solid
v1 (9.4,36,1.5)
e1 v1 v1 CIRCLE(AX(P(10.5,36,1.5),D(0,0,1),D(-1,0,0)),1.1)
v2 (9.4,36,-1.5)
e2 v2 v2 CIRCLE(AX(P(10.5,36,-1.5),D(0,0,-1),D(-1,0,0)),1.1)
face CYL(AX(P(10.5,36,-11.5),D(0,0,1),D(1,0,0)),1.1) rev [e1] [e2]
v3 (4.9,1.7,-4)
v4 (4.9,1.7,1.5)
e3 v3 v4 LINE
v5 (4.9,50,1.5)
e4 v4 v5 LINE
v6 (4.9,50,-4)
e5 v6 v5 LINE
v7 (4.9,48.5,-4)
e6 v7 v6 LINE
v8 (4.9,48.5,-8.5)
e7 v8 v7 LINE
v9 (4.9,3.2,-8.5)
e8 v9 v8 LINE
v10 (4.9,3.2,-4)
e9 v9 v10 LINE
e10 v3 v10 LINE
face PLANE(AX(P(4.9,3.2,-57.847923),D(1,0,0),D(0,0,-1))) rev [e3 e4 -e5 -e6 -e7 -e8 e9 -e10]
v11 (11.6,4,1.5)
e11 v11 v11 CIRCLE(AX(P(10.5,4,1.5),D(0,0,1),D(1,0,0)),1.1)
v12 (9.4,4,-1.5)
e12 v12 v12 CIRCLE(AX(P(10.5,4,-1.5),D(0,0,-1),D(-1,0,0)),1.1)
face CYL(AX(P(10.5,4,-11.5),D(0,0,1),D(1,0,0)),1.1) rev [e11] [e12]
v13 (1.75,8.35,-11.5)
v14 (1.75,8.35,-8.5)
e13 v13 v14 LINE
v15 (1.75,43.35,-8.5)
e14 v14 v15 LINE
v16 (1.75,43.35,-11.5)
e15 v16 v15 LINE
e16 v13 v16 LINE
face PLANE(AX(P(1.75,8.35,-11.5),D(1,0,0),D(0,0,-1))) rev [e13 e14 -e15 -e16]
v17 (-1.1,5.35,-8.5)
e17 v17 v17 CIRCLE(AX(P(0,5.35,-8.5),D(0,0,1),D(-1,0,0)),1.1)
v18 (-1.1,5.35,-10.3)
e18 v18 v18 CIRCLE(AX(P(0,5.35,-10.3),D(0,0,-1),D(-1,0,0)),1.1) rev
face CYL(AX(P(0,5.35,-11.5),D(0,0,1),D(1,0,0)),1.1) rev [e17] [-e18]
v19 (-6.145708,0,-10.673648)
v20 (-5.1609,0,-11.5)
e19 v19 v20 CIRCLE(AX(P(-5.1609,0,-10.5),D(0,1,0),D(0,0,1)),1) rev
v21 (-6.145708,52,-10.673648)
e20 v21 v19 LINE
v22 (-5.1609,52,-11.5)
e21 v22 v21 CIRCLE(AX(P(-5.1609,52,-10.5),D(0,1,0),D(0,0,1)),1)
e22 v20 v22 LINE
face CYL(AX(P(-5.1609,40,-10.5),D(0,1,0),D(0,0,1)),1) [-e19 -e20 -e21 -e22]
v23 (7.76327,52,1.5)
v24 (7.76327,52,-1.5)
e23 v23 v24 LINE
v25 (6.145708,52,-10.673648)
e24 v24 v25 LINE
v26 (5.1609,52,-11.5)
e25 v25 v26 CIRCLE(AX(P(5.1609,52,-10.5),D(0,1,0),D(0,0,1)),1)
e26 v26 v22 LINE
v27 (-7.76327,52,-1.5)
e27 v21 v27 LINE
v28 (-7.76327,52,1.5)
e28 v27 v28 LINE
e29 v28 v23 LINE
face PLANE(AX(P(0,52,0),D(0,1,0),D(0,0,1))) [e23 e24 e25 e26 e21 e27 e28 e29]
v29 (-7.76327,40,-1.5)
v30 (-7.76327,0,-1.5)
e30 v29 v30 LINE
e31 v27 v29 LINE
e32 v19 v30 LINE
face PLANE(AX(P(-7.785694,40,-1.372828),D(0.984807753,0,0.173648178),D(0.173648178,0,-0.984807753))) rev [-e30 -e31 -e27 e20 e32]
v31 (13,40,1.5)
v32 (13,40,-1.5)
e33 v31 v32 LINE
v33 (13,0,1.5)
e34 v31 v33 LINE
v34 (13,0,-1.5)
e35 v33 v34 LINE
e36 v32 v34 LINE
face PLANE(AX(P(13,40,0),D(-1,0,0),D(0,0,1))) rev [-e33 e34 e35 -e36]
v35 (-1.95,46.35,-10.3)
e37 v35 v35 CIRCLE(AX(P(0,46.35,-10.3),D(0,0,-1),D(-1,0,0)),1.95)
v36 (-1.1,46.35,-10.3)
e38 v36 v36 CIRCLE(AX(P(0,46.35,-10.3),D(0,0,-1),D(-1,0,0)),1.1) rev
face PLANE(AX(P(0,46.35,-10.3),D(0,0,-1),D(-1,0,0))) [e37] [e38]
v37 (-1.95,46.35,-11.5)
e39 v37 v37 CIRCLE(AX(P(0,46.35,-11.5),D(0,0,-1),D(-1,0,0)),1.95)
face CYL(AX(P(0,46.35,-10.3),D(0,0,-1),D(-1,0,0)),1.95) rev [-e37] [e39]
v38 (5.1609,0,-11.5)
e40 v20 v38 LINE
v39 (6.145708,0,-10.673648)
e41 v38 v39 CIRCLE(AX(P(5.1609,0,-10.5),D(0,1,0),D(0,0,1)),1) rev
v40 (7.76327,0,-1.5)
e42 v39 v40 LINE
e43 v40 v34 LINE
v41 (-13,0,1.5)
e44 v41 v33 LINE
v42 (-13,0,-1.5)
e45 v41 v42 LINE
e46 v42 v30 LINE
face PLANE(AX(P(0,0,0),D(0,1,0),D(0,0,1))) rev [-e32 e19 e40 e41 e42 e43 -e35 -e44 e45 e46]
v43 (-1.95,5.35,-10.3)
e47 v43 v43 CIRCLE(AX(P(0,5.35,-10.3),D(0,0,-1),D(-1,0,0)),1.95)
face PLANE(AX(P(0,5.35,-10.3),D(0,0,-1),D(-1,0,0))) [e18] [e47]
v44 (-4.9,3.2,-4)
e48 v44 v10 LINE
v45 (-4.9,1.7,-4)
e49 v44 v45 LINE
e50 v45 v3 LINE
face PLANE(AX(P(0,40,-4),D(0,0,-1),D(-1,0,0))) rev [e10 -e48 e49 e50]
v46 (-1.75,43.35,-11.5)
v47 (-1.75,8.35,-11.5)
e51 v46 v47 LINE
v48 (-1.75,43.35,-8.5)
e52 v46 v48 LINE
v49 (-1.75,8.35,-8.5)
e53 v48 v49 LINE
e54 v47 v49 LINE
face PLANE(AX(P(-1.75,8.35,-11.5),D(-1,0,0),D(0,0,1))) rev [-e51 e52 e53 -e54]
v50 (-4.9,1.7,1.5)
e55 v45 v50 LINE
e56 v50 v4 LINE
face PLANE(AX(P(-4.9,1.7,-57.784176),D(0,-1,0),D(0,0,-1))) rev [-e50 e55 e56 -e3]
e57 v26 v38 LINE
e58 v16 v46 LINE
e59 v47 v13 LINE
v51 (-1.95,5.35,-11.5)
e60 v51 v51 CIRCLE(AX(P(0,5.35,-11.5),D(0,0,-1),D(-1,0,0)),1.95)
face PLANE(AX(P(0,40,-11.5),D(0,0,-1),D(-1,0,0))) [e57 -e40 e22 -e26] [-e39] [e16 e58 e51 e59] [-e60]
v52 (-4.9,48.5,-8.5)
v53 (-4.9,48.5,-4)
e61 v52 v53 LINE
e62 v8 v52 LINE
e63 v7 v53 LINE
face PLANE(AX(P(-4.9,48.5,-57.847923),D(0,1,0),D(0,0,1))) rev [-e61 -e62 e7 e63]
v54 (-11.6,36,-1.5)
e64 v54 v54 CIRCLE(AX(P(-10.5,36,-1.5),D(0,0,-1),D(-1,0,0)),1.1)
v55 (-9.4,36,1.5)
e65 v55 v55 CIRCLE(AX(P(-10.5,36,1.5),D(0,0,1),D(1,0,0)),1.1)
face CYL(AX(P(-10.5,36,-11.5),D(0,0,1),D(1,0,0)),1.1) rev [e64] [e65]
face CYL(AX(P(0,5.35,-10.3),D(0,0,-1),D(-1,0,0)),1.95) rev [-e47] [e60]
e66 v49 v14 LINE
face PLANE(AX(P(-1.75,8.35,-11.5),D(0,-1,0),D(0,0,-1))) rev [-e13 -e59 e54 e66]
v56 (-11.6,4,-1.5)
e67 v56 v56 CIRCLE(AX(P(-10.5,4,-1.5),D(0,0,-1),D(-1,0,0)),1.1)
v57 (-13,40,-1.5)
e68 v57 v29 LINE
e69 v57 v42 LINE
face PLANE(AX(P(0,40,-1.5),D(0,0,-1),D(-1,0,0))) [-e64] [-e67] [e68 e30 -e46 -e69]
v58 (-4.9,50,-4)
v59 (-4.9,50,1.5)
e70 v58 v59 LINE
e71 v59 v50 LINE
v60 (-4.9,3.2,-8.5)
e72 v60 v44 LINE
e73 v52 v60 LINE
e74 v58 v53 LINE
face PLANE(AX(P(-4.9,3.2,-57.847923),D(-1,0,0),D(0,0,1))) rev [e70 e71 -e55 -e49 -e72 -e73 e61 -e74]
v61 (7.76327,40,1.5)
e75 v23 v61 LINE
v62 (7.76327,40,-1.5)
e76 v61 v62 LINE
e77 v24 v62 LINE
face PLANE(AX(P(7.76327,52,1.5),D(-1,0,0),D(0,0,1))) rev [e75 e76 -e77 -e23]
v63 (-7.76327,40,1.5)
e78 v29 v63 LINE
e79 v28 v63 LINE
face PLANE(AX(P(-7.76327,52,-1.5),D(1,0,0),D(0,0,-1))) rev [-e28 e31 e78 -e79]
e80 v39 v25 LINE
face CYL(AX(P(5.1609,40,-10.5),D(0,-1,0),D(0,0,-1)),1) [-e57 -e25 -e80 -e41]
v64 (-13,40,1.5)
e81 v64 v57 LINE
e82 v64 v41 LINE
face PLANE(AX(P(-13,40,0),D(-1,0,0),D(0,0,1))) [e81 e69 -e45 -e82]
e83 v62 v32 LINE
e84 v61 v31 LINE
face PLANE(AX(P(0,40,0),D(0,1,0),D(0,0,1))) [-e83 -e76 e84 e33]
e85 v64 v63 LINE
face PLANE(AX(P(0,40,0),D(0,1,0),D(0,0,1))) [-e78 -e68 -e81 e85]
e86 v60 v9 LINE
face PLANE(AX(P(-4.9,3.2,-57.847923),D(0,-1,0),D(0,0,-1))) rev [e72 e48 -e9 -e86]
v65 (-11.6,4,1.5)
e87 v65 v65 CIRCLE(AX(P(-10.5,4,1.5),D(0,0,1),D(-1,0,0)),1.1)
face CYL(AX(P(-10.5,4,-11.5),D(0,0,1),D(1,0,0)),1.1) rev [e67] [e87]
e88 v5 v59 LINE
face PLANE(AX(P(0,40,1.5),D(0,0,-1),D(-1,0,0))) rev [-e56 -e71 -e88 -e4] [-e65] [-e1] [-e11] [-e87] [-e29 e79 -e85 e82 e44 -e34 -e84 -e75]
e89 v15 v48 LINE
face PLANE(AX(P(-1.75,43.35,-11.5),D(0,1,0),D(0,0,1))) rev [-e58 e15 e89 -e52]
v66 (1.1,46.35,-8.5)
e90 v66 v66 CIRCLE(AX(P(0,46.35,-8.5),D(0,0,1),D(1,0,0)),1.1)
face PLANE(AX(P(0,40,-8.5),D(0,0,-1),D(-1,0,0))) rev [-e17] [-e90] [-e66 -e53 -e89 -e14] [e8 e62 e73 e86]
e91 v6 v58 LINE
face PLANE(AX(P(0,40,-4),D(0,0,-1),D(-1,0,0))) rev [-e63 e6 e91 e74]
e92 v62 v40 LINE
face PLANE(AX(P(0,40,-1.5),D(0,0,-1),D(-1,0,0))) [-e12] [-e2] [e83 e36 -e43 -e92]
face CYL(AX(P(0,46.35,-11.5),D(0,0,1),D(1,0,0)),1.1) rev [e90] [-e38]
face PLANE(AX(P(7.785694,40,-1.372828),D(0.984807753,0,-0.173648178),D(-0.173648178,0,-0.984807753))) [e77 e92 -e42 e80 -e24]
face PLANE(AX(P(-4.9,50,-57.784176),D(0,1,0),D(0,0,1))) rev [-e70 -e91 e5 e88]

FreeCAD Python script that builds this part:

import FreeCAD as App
import Part
import Sketcher
from FreeCAD import Vector
Q = App.Units.Quantity


def edges_at(feature, points):
    """Names of the edges that pass closest to the given points."""
    edges = feature.Shape.Edges
    near = lambda p: min(range(len(edges)), key=lambda i: edges[i].distToShape(Part.Vertex(*p))[0])
    return sorted({f"Edge{near(p) + 1}" for p in points})

doc = App.newDocument("Part")
params = doc.addObject("Spreadsheet::Sheet", "Params")
for row, (alias, value) in enumerate([
    ("sketch1_width", "26 mm"),
    ("sketch1_width2", "12 mm"),
    ("sketch1_height", "3 mm"),
    ("pad1_length", "40 mm"),
    ("sketch2_width", "12 mm"),
    ("sketch2_height", "3 mm"),
    ("pad2_length", "12 mm"),
    ("sketch3_width", "9.8 mm"),
    ("sketch3_height", "45.3 mm"),
    ("pocket1_length", "10 mm"),
    ("sketch4_width", "9.8 mm"),
    ("sketch4_height", "48.3 mm"),
    ("pocket2_length", "5.5 mm"),
    ("sketch5_diameter", "2.2 mm"),
    ("sketch6_height", "35 mm"),
    ("sketch6_width", "3.5 mm"),
    ("sketch7_diameter", "2.2 mm"),
    ("sketch8_diameter", "3.9 mm"),
    ("pocket6_length", "1.2 mm"),
    ("fillet_radius", "1 mm"),
], start=1):
    params.set(f"A{row}", alias)
    params.set(f"B{row}", "=" + value)
    params.setAlias(f"B{row}", alias)

body = doc.addObject("PartDesign::Body", "Body")

# Sketch on XZ plane
sketch1 = doc.addObject("Sketcher::SketchObject", "Sketch")
body.addObject(sketch1)
sketch1.AttachmentSupport = (doc.XZ_Plane, [""])
sketch1.MapMode = "FlatFace"
sketch1.addGeometry(Part.LineSegment(Vector(-6, -11.5, 0), Vector(-7.76327, -1.5, 0)), False)
sketch1.addGeometry(Part.LineSegment(Vector(-7.76327, -1.5, 0), Vector(-13, -1.5, 0)), False)
sketch1.addGeometry(Part.LineSegment(Vector(-13, -1.5, 0), Vector(-13, 1.5, 0)), False)
sketch1.addGeometry(Part.LineSegment(Vector(-13, 1.5, 0), Vector(13, 1.5, 0)), False)
sketch1.addGeometry(Part.LineSegment(Vector(13, 1.5, 0), Vector(13, -1.5, 0)), False)
sketch1.addGeometry(Part.LineSegment(Vector(13, -1.5, 0), Vector(7.76327, -1.5, 0)), False)
sketch1.addGeometry(Part.LineSegment(Vector(7.76327, -1.5, 0), Vector(6, -11.5, 0)), False)
sketch1.addGeometry(Part.LineSegment(Vector(6, -11.5, 0), Vector(-6, -11.5, 0)), False)
sketch1.addConstraint(Sketcher.Constraint("Coincident", 0, 2, 1, 1))
sketch1.addConstraint(Sketcher.Constraint("Coincident", 1, 2, 2, 1))
sketch1.addConstraint(Sketcher.Constraint("Coincident", 2, 2, 3, 1))
sketch1.addConstraint(Sketcher.Constraint("Coincident", 3, 2, 4, 1))
sketch1.addConstraint(Sketcher.Constraint("Coincident", 4, 2, 5, 1))
sketch1.addConstraint(Sketcher.Constraint("Coincident", 5, 2, 6, 1))
sketch1.addConstraint(Sketcher.Constraint("Coincident", 6, 2, 7, 1))
sketch1.addConstraint(Sketcher.Constraint("Coincident", 7, 2, 0, 1))
sketch1.addConstraint(Sketcher.Constraint("Horizontal", 1))
sketch1.addConstraint(Sketcher.Constraint("Vertical", 2))
sketch1.addConstraint(Sketcher.Constraint("Horizontal", 3))
sketch1.addConstraint(Sketcher.Constraint("Vertical", 4))
sketch1.addConstraint(Sketcher.Constraint("Horizontal", 5))
sketch1.addConstraint(Sketcher.Constraint("Horizontal", 7))
sketch1.addConstraint(Sketcher.Constraint("Symmetric", 1, 2, 3, 2, -1, 1))
sketch1.addConstraint(Sketcher.Constraint("Symmetric", 0, 2, 5, 2, -2))
sketch1.addConstraint(Sketcher.Constraint("Equal", 0, 6))
sketch1.addConstraint(Sketcher.Constraint("DistanceX", 3, 1, 3, 2, 26.0))
sketch1.addConstraint(Sketcher.Constraint("DistanceX", 7, 2, 7, 1, 12.0))
sketch1.addConstraint(Sketcher.Constraint("DistanceY", 2, 1, 2, 2, 3.0))
sketch1.addConstraint(Sketcher.Constraint("Angle", 0, Q("100 deg")))
sketch1.addConstraint(Sketcher.Constraint("DistanceY", 6, 2, 5, 2, 10.0))
sketch1.setExpression("Constraints[17]", "Params.sketch1_width")
sketch1.setExpression("Constraints[18]", "Params.sketch1_width2")
sketch1.setExpression("Constraints[19]", "Params.sketch1_height")
pad1 = doc.addObject("PartDesign::Pad", "Pad")
body.addObject(pad1)
pad1.Profile = sketch1
pad1.setExpression("Length", "Params.pad1_length")
pad1.Reversed = True

# Sketch on XZ plane
sketch2 = doc.addObject("Sketcher::SketchObject", "Sketch001")
body.addObject(sketch2)
sketch2.AttachmentSupport = (doc.XZ_Plane, [""])
sketch2.MapMode = "FlatFace"
sketch2.AttachmentOffset = App.Placement(Vector(0, 0, -40), App.Rotation())
sketch2.addGeometry(Part.LineSegment(Vector(7.76327, -1.5, 0), Vector(6, -11.5, 0)), False)
sketch2.addGeometry(Part.LineSegment(Vector(6, -11.5, 0), Vector(-6, -11.5, 0)), False)
sketch2.addGeometry(Part.LineSegment(Vector(-6, -11.5, 0), Vector(-7.76327, -1.5, 0)), False)
sketch2.addGeometry(Part.LineSegment(Vector(-7.76327, -1.5, 0), Vector(-7.76327, 1.5, 0)), False)
sketch2.addGeometry(Part.LineSegment(Vector(-7.76327, 1.5, 0), Vector(7.76327, 1.5, 0)), False)
sketch2.addGeometry(Part.LineSegment(Vector(7.76327, 1.5, 0), Vector(7.76327, -1.5, 0)), False)
sketch2.addConstraint(Sketcher.Constraint("Coincident", 0, 2, 1, 1))
sketch2.addConstraint(Sketcher.Constraint("Coincident", 1, 2, 2, 1))
sketch2.addConstraint(Sketcher.Constraint("Coincident", 2, 2, 3, 1))
sketch2.addConstraint(Sketcher.Constraint("Coincident", 3, 2, 4, 1))
sketch2.addConstraint(Sketcher.Constraint("Coincident", 4, 2, 5, 1))
sketch2.addConstraint(Sketcher.Constraint("Coincident", 5, 2, 0, 1))
sketch2.addConstraint(Sketcher.Constraint("Horizontal", 1))
sketch2.addConstraint(Sketcher.Constraint("Vertical", 3))
sketch2.addConstraint(Sketcher.Constraint("Horizontal", 4))
sketch2.addConstraint(Sketcher.Constraint("Vertical", 5))
sketch2.addConstraint(Sketcher.Constraint("Symmetric", 2, 2, 4, 2, -1, 1))
sketch2.addConstraint(Sketcher.Constraint("Horizontal", 2, 2, 5, 2))
sketch2.addConstraint(Sketcher.Constraint("Equal", 0, 2))
sketch2.addConstraint(Sketcher.Constraint("DistanceX", 1, 2, 1, 1, 12.0))
sketch2.addConstraint(Sketcher.Constraint("DistanceY", 3, 1, 3, 2, 3.0))
sketch2.addConstraint(Sketcher.Constraint("Angle", 0, Q("-100 deg")))
sketch2.addConstraint(Sketcher.Constraint("DistanceY", 1, 2, 2, 2, 10.0))
sketch2.setExpression("Constraints[13]", "Params.sketch2_width")
sketch2.setExpression("Constraints[14]", "Params.sketch2_height")
pad2 = doc.addObject("PartDesign::Pad", "Pad001")
body.addObject(pad2)
pad2.Profile = sketch2
pad2.setExpression("Length", "Params.pad2_length")
pad2.Reversed = True

# Sketch on XY plane
sketch3 = doc.addObject("Sketcher::SketchObject", "Sketch002")
body.addObject(sketch3)
sketch3.AttachmentSupport = (doc.XY_Plane, [""])
sketch3.MapMode = "FlatFace"
sketch3.AttachmentOffset = App.Placement(Vector(0, 0, 1.5), App.Rotation())
sketch3.addGeometry(Part.LineSegment(Vector(-4.9, 48.5, 0), Vector(-4.9, 3.2, 0)), False)
sketch3.addGeometry(Part.LineSegment(Vector(-4.9, 3.2, 0), Vector(4.9, 3.2, 0)), False)
sketch3.addGeometry(Part.LineSegment(Vector(4.9, 3.2, 0), Vector(4.9, 48.5, 0)), False)
sketch3.addGeometry(Part.LineSegment(Vector(4.9, 48.5, 0), Vector(-4.9, 48.5, 0)), False)
sketch3.addConstraint(Sketcher.Constraint("Coincident", 0, 2, 1, 1))
sketch3.addConstraint(Sketcher.Constraint("Coincident", 1, 2, 2, 1))
sketch3.addConstraint(Sketcher.Constraint("Coincident", 2, 2, 3, 1))
sketch3.addConstraint(Sketcher.Constraint("Coincident", 3, 2, 0, 1))
sketch3.addConstraint(Sketcher.Constraint("Vertical", 0))
sketch3.addConstraint(Sketcher.Constraint("Horizontal", 1))
sketch3.addConstraint(Sketcher.Constraint("Vertical", 2))
sketch3.addConstraint(Sketcher.Constraint("Horizontal", 3))
sketch3.addConstraint(Sketcher.Constraint("DistanceX", 1, 1, 1, 2, 9.8))
sketch3.addConstraint(Sketcher.Constraint("DistanceY", 0, 2, 0, 1, 45.3))
sketch3.addConstraint(Sketcher.Constraint("DistanceX", 0, 2, -1, 1, 4.9))
sketch3.addConstraint(Sketcher.Constraint("DistanceY", -1, 1, 0, 2, 3.2))
sketch3.setExpression("Constraints[8]", "Params.sketch3_width")
sketch3.setExpression("Constraints[9]", "Params.sketch3_height")
pocket1 = doc.addObject("PartDesign::Pocket", "Pocket")
body.addObject(pocket1)
pocket1.Profile = sketch3
pocket1.setExpression("Length", "Params.pocket1_length")

# Sketch on XY plane
sketch4 = doc.addObject("Sketcher::SketchObject", "Sketch003")
body.addObject(sketch4)
sketch4.AttachmentSupport = (doc.XY_Plane, [""])
sketch4.MapMode = "FlatFace"
sketch4.AttachmentOffset = App.Placement(Vector(0, 0, 1.5), App.Rotation())
sketch4.addGeometry(Part.LineSegment(Vector(-4.9, 50, 0), Vector(-4.9, 1.7, 0)), False)
sketch4.addGeometry(Part.LineSegment(Vector(-4.9, 1.7, 0), Vector(4.9, 1.7, 0)), False)
sketch4.addGeometry(Part.LineSegment(Vector(4.9, 1.7, 0), Vector(4.9, 50, 0)), False)
sketch4.addGeometry(Part.LineSegment(Vector(4.9, 50, 0), Vector(-4.9, 50, 0)), False)
sketch4.addConstraint(Sketcher.Constraint("Coincident", 0, 2, 1, 1))
sketch4.addConstraint(Sketcher.Constraint("Coincident", 1, 2, 2, 1))
sketch4.addConstraint(Sketcher.Constraint("Coincident", 2, 2, 3, 1))
sketch4.addConstraint(Sketcher.Constraint("Coincident", 3, 2, 0, 1))
sketch4.addConstraint(Sketcher.Constraint("Vertical", 0))
sketch4.addConstraint(Sketcher.Constraint("Horizontal", 1))
sketch4.addConstraint(Sketcher.Constraint("Vertical", 2))
sketch4.addConstraint(Sketcher.Constraint("Horizontal", 3))
sketch4.addConstraint(Sketcher.Constraint("DistanceX", 1, 1, 1, 2, 9.8))
sketch4.addConstraint(Sketcher.Constraint("DistanceY", 0, 2, 0, 1, 48.3))
sketch4.addConstraint(Sketcher.Constraint("DistanceY", -1, 1, 2, 2, 50.0))
sketch4.addConstraint(Sketcher.Constraint("DistanceX", 0, 2, -1, 1, 4.9))
sketch4.setExpression("Constraints[8]", "Params.sketch4_width")
sketch4.setExpression("Constraints[9]", "Params.sketch4_height")
pocket2 = doc.addObject("PartDesign::Pocket", "Pocket001")
body.addObject(pocket2)
pocket2.Profile = sketch4
pocket2.setExpression("Length", "Params.pocket2_length")

# Sketch on XY plane
sketch5 = doc.addObject("Sketcher::SketchObject", "Sketch004")
body.addObject(sketch5)
sketch5.AttachmentSupport = (doc.XY_Plane, [""])
sketch5.MapMode = "FlatFace"
sketch5.AttachmentOffset = App.Placement(Vector(0, 0, 1.5), App.Rotation())
sketch5.addGeometry(Part.Circle(Vector(-10.5, 36, 0), Vector(0, 0, 1), 1.1), False)
sketch5.addGeometry(Part.Circle(Vector(-10.5, 4, 0), Vector(0, 0, 1), 1.1), False)
sketch5.addGeometry(Part.Circle(Vector(10.5, 4, 0), Vector(0, 0, 1), 1.1), False)
sketch5.addGeometry(Part.Circle(Vector(10.5, 36, 0), Vector(0, 0, 1), 1.1), False)
sketch5.addConstraint(Sketcher.Constraint("Equal", 0, 1))
sketch5.addConstraint(Sketcher.Constraint("Equal", 1, 2))
sketch5.addConstraint(Sketcher.Constraint("Equal", 2, 3))
sketch5.addConstraint(Sketcher.Constraint("Symmetric", 1, 3, 2, 3, -2))
sketch5.addConstraint(Sketcher.Constraint("Symmetric", 0, 3, 3, 3, -2))
sketch5.addConstraint(Sketcher.Constraint("Vertical", 0, 3, 1, 3))
sketch5.addConstraint(Sketcher.Constraint("Diameter", 0, 2.2))
sketch5.addConstraint(Sketcher.Constraint("DistanceY", -1, 1, 0, 3, 36.0))
sketch5.addConstraint(Sketcher.Constraint("DistanceY", -1, 1, 1, 3, 4.0))
sketch5.addConstraint(Sketcher.Constraint("DistanceX", 1, 3, 2, 3, 21.0))
sketch5.setExpression("Constraints[6]", "Params.sketch5_diameter")
pocket3 = doc.addObject("PartDesign::Pocket", "Pocket002")
body.addObject(pocket3)
pocket3.Profile = sketch5
pocket3.Type = "ThroughAll"

# Sketch on XY plane
sketch6 = doc.addObject("Sketcher::SketchObject", "Sketch005")
body.addObject(sketch6)
sketch6.AttachmentSupport = (doc.XY_Plane, [""])
sketch6.MapMode = "FlatFace"
sketch6.AttachmentOffset = App.Placement(Vector(0, 0, -8.5), App.Rotation())
sketch6.addGeometry(Part.LineSegment(Vector(-1.75, 43.35, 0), Vector(-1.75, 8.35, 0)), False)
sketch6.addGeometry(Part.LineSegment(Vector(-1.75, 8.35, 0), Vector(1.75, 8.35, 0)), False)
sketch6.addGeometry(Part.LineSegment(Vector(1.75, 8.35, 0), Vector(1.75, 43.35, 0)), False)
sketch6.addGeometry(Part.LineSegment(Vector(1.75, 43.35, 0), Vector(-1.75, 43.35, 0)), False)
sketch6.addConstraint(Sketcher.Constraint("Coincident", 0, 2, 1, 1))
sketch6.addConstraint(Sketcher.Constraint("Coincident", 1, 2, 2, 1))
sketch6.addConstraint(Sketcher.Constraint("Coincident", 2, 2, 3, 1))
sketch6.addConstraint(Sketcher.Constraint("Coincident", 3, 2, 0, 1))
sketch6.addConstraint(Sketcher.Constraint("Vertical", 0))
sketch6.addConstraint(Sketcher.Constraint("Horizontal", 1))
sketch6.addConstraint(Sketcher.Constraint("Vertical", 2))
sketch6.addConstraint(Sketcher.Constraint("Horizontal", 3))
sketch6.addConstraint(Sketcher.Constraint("DistanceY", 0, 2, 0, 1, 35.0))
sketch6.addConstraint(Sketcher.Constraint("DistanceX", 1, 1, 1, 2, 3.5))
sketch6.addConstraint(Sketcher.Constraint("DistanceX", 0, 2, -1, 1, 1.75))
sketch6.addConstraint(Sketcher.Constraint("DistanceY", -1, 1, 0, 2, 8.35))
sketch6.setExpression("Constraints[8]", "Params.sketch6_height")
sketch6.setExpression("Constraints[9]", "Params.sketch6_width")
pocket4 = doc.addObject("PartDesign::Pocket", "Pocket003")
body.addObject(pocket4)
pocket4.Profile = sketch6
pocket4.Type = "ThroughAll"

# Sketch on XY plane
sketch7 = doc.addObject("Sketcher::SketchObject", "Sketch006")
body.addObject(sketch7)
sketch7.AttachmentSupport = (doc.XY_Plane, [""])
sketch7.MapMode = "FlatFace"
sketch7.AttachmentOffset = App.Placement(Vector(0, 0, -8.5), App.Rotation())
sketch7.addGeometry(Part.Circle(Vector(0, 46.35, 0), Vector(0, 0, 1), 1.1), False)
sketch7.addGeometry(Part.Circle(Vector(0, 5.35, 0), Vector(0, 0, 1), 1.1), False)
sketch7.addConstraint(Sketcher.Constraint("Equal", 0, 1))
sketch7.addConstraint(Sketcher.Constraint("PointOnObject", 0, 3, -2))
sketch7.addConstraint(Sketcher.Constraint("PointOnObject", 1, 3, -2))
sketch7.addConstraint(Sketcher.Constraint("Diameter", 0, 2.2))
sketch7.addConstraint(Sketcher.Constraint("DistanceY", 1, 3, 0, 3, 41.0))
sketch7.addConstraint(Sketcher.Constraint("DistanceY", -1, 1, 0, 3, 46.35))
sketch7.setExpression("Constraints[3]", "Params.sketch7_diameter")
pocket5 = doc.addObject("PartDesign::Pocket", "Pocket004")
body.addObject(pocket5)
pocket5.Profile = sketch7
pocket5.Type = "ThroughAll"

# Sketch on XY plane
sketch8 = doc.addObject("Sketcher::SketchObject", "Sketch007")
body.addObject(sketch8)
sketch8.AttachmentSupport = (doc.XY_Plane, [""])
sketch8.MapMode = "FlatFace"
sketch8.AttachmentOffset = App.Placement(Vector(0, 0, -11.5), App.Rotation())
sketch8.addGeometry(Part.Circle(Vector(0, 46.35, 0), Vector(0, 0, 1), 1.95), False)
sketch8.addGeometry(Part.Circle(Vector(0, 5.35, 0), Vector(0, 0, 1), 1.95), False)
sketch8.addConstraint(Sketcher.Constraint("Equal", 0, 1))
sketch8.addConstraint(Sketcher.Constraint("PointOnObject", 0, 3, -2))
sketch8.addConstraint(Sketcher.Constraint("PointOnObject", 1, 3, -2))
sketch8.addConstraint(Sketcher.Constraint("Diameter", 0, 3.9))
sketch8.addConstraint(Sketcher.Constraint("DistanceY", 1, 3, 0, 3, 41.0))
sketch8.addConstraint(Sketcher.Constraint("DistanceY", -1, 1, 0, 3, 46.35))
sketch8.setExpression("Constraints[3]", "Params.sketch8_diameter")
pocket6 = doc.addObject("PartDesign::Pocket", "Pocket005")
body.addObject(pocket6)
pocket6.Profile = sketch8
pocket6.setExpression("Length", "Params.pocket6_length")
pocket6.Reversed = True
doc.recompute()

fillet = doc.addObject("PartDesign::Fillet", "Fillet")
body.addObject(fillet)
fillet.Base = (pocket6, edges_at(pocket6, [(6, 26, -11.5), (-6, 26, -11.5)]))
fillet.setExpression("Radius", "Params.fillet_radius")

doc.recompute()
